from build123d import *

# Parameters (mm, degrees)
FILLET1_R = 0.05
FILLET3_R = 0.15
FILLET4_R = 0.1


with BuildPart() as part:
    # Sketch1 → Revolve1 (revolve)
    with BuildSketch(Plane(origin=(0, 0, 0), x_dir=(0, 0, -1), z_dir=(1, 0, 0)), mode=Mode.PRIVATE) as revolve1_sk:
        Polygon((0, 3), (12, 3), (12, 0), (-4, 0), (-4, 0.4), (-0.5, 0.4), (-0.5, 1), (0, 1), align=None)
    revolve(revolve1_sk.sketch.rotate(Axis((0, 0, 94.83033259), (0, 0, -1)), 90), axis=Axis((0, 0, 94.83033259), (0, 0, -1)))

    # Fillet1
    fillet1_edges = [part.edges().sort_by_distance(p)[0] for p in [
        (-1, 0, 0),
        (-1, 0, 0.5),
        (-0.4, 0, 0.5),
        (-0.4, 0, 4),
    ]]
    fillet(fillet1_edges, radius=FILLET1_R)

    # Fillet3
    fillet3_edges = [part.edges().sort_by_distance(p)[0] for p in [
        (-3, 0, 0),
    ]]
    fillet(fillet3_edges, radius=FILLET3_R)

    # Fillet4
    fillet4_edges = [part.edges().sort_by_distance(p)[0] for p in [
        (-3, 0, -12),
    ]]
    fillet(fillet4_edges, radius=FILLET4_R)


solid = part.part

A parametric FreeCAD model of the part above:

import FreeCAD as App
import Part
import Sketcher
from FreeCAD import Vector


def edges_at(feature, points):
    """Names of the edges that pass closest to the given points."""
    edges = feature.Shape.Edges
    near = lambda p: min(range(len(edges)), key=lambda i: edges[i].distToShape(Part.Vertex(*p))[0])
    return sorted({f"Edge{near(p) + 1}" for p in points})


def add_polygon(sketch, points):
    """Adds a closed chain of lines whose ends are joined by coincident constraints."""
    first, n = sketch.GeometryCount, len(points)
    for a, b in zip(points, points[1:] + points[:1]):
        sketch.addGeometry(Part.LineSegment(App.Vector(*a, 0), App.Vector(*b, 0)), False)
    for i in range(n):
        sketch.addConstraint(Sketcher.Constraint("Coincident", first + i, 2, first + (i + 1) % n, 1))

doc = App.newDocument("Part")
body = doc.addObject("PartDesign::Body", "Body")

# Sketch on YZ plane
sketch1 = body.newObject("Sketcher::SketchObject", "Sketch")
sketch1.AttachmentSupport = (doc.getObject("YZ_Plane"), [""])
sketch1.MapMode = "FlatFace"
add_polygon(sketch1, [(3, -12), (3, 0), (1, 0), (1, 0.5), (0.4, 0.5), (0.4, 4), (0, 4), (0, -12)])  # lines 0-7
sketch1.addConstraint([
    Sketcher.Constraint("Vertical", 0),
    Sketcher.Constraint("Horizontal", 1),
    Sketcher.Constraint("Vertical", 2),
    Sketcher.Constraint("Horizontal", 3),
    Sketcher.Constraint("Vertical", 4),
    Sketcher.Constraint("Horizontal", 5),
    Sketcher.Constraint("Vertical", 6),
    Sketcher.Constraint("Horizontal", 7),
    Sketcher.Constraint("PointOnObject", 0, 2, -1),
    Sketcher.Constraint("PointOnObject", 5, 2, -2),
    Sketcher.Constraint("DistanceX", 1, 2, 1, 1, 2.0),
    Sketcher.Constraint("DistanceX", 7, 1, 7, 2, 3.0),
    Sketcher.Constraint("DistanceY", 0, 1, 0, 2, 12.0),
    Sketcher.Constraint("DistanceY", 6, 2, 6, 1, 16.0),
    Sketcher.Constraint("DistanceX", 3, 2, 3, 1, 0.6),
    Sketcher.Constraint("DistanceY", 2, 1, 2, 2, 0.5),
])
revolution = body.newObject("PartDesign::Revolution", "Revolution")
revolution.Profile = sketch1
revolution.ReferenceAxis = (sketch1, ["V_Axis"])
revolution.Angle = 360
doc.recompute()

fillet = body.newObject("PartDesign::Fillet", "Fillet")
fillet.Base = (revolution, edges_at(revolution, [
    (-1, 0, 0),
    (-1, 0, 0.5),
    (-0.4, 0, 0.5),
    (-0.4, 0, 4),
]))
fillet.Radius = 0.05
doc.recompute()

fillet2 = body.newObject("PartDesign::Fillet", "Fillet001")
fillet2.Base = (fillet, edges_at(fillet, [(-3, 0, 0)]))
fillet2.Radius = 0.15
doc.recompute()

fillet3 = body.newObject("PartDesign::Fillet", "Fillet002")
fillet3.Base = (fillet2, edges_at(fillet2, [(-3, 0, -12)]))
fillet3.Radius = 0.1

doc.recompute()
